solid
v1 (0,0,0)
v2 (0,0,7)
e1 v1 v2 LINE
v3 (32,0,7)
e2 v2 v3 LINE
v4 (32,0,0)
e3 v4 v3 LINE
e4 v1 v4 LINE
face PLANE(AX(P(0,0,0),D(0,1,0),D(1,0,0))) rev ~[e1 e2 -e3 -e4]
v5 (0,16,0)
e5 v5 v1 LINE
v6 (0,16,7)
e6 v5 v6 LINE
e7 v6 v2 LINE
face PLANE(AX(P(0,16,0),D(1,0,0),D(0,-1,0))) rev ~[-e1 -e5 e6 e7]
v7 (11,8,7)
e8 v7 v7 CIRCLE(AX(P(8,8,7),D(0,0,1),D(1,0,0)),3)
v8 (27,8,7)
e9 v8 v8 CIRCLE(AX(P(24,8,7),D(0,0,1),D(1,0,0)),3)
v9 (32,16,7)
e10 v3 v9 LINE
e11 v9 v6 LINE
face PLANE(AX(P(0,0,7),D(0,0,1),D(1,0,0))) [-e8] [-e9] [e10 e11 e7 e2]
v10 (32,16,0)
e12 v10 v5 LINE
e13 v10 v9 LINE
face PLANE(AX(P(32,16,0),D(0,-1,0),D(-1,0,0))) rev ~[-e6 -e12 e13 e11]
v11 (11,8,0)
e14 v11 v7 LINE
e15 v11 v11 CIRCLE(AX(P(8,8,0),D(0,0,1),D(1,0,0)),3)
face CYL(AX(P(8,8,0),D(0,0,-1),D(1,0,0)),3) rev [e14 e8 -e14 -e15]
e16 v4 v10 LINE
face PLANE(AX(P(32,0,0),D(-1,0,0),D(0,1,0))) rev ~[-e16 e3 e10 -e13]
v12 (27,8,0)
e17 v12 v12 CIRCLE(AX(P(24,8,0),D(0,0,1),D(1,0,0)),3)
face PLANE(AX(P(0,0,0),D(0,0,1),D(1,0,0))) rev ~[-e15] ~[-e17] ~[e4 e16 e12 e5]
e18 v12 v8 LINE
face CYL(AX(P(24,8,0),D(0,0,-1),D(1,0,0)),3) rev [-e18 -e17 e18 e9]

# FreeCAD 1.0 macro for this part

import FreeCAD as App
import Part
import Sketcher
Q = App.Units.Quantity


def add_polygon(sketch, points):
    """Adds a closed chain of lines whose ends are joined by coincident constraints."""
    first, n = sketch.GeometryCount, len(points)
    for a, b in zip(points, points[1:] + points[:1]):
        sketch.addGeometry(Part.LineSegment(App.Vector(*a, 0), App.Vector(*b, 0)), False)
    for i in range(n):
        sketch.addConstraint(Sketcher.Constraint("Coincident", first + i, 2, first + (i + 1) % n, 1))

doc = App.newDocument("Part")
body = doc.addObject("PartDesign::Body", "Body")

# Sketch on XY plane
sketch1 = doc.addObject("Sketcher::SketchObject", "Sketch")
body.addObject(sketch1)
sketch1.AttachmentSupport = (doc.XY_Plane, [""])
sketch1.MapMode = "FlatFace"
add_polygon(sketch1, [(0, 16), (0, 0), (32, 0), (32, 16)])  # lines 0-3
sketch1.addGeometry(Part.Circle(App.Vector(8, 8, 0), App.Vector(0, 0, 1), 3), False)  # 4
sketch1.addGeometry(Part.Circle(App.Vector(24, 8, 0), App.Vector(0, 0, 1), 3), False)  # 5
sketch1.addConstraint(Sketcher.Constraint("Vertical", 0))
sketch1.addConstraint(Sketcher.Constraint("Horizontal", 1))
sketch1.addConstraint(Sketcher.Constraint("Vertical", 2))
sketch1.addConstraint(Sketcher.Constraint("Horizontal", 3))
sketch1.addConstraint(Sketcher.Constraint("Coincident", 0, 2, -1, 1))
sketch1.addConstraint(Sketcher.Constraint("Equal", 4, 5))
sketch1.addConstraint(Sketcher.Constraint("Horizontal", 4, 3, 5, 3))
sketch1.addConstraint(Sketcher.Constraint("Diameter", 4, Q("6 mm")))
sketch1.addConstraint(Sketcher.Constraint("DistanceX", 1, 1, 1, 2, Q("32 mm")))
sketch1.addConstraint(Sketcher.Constraint("DistanceY", 0, 2, 0, 1, Q("16 mm")))
sketch1.addConstraint(Sketcher.Constraint("DistanceX", -1, 1, 4, 3, Q("8 mm")))
sketch1.addConstraint(Sketcher.Constraint("DistanceY", -1, 1, 4, 3, Q("8 mm")))
sketch1.addConstraint(Sketcher.Constraint("DistanceX", 4, 3, 5, 3, Q("16 mm")))
pad1 = doc.addObject("PartDesign::Pad", "Pad")
body.addObject(pad1)
pad1.Profile = sketch1
pad1.Length = 7

doc.recompute()
